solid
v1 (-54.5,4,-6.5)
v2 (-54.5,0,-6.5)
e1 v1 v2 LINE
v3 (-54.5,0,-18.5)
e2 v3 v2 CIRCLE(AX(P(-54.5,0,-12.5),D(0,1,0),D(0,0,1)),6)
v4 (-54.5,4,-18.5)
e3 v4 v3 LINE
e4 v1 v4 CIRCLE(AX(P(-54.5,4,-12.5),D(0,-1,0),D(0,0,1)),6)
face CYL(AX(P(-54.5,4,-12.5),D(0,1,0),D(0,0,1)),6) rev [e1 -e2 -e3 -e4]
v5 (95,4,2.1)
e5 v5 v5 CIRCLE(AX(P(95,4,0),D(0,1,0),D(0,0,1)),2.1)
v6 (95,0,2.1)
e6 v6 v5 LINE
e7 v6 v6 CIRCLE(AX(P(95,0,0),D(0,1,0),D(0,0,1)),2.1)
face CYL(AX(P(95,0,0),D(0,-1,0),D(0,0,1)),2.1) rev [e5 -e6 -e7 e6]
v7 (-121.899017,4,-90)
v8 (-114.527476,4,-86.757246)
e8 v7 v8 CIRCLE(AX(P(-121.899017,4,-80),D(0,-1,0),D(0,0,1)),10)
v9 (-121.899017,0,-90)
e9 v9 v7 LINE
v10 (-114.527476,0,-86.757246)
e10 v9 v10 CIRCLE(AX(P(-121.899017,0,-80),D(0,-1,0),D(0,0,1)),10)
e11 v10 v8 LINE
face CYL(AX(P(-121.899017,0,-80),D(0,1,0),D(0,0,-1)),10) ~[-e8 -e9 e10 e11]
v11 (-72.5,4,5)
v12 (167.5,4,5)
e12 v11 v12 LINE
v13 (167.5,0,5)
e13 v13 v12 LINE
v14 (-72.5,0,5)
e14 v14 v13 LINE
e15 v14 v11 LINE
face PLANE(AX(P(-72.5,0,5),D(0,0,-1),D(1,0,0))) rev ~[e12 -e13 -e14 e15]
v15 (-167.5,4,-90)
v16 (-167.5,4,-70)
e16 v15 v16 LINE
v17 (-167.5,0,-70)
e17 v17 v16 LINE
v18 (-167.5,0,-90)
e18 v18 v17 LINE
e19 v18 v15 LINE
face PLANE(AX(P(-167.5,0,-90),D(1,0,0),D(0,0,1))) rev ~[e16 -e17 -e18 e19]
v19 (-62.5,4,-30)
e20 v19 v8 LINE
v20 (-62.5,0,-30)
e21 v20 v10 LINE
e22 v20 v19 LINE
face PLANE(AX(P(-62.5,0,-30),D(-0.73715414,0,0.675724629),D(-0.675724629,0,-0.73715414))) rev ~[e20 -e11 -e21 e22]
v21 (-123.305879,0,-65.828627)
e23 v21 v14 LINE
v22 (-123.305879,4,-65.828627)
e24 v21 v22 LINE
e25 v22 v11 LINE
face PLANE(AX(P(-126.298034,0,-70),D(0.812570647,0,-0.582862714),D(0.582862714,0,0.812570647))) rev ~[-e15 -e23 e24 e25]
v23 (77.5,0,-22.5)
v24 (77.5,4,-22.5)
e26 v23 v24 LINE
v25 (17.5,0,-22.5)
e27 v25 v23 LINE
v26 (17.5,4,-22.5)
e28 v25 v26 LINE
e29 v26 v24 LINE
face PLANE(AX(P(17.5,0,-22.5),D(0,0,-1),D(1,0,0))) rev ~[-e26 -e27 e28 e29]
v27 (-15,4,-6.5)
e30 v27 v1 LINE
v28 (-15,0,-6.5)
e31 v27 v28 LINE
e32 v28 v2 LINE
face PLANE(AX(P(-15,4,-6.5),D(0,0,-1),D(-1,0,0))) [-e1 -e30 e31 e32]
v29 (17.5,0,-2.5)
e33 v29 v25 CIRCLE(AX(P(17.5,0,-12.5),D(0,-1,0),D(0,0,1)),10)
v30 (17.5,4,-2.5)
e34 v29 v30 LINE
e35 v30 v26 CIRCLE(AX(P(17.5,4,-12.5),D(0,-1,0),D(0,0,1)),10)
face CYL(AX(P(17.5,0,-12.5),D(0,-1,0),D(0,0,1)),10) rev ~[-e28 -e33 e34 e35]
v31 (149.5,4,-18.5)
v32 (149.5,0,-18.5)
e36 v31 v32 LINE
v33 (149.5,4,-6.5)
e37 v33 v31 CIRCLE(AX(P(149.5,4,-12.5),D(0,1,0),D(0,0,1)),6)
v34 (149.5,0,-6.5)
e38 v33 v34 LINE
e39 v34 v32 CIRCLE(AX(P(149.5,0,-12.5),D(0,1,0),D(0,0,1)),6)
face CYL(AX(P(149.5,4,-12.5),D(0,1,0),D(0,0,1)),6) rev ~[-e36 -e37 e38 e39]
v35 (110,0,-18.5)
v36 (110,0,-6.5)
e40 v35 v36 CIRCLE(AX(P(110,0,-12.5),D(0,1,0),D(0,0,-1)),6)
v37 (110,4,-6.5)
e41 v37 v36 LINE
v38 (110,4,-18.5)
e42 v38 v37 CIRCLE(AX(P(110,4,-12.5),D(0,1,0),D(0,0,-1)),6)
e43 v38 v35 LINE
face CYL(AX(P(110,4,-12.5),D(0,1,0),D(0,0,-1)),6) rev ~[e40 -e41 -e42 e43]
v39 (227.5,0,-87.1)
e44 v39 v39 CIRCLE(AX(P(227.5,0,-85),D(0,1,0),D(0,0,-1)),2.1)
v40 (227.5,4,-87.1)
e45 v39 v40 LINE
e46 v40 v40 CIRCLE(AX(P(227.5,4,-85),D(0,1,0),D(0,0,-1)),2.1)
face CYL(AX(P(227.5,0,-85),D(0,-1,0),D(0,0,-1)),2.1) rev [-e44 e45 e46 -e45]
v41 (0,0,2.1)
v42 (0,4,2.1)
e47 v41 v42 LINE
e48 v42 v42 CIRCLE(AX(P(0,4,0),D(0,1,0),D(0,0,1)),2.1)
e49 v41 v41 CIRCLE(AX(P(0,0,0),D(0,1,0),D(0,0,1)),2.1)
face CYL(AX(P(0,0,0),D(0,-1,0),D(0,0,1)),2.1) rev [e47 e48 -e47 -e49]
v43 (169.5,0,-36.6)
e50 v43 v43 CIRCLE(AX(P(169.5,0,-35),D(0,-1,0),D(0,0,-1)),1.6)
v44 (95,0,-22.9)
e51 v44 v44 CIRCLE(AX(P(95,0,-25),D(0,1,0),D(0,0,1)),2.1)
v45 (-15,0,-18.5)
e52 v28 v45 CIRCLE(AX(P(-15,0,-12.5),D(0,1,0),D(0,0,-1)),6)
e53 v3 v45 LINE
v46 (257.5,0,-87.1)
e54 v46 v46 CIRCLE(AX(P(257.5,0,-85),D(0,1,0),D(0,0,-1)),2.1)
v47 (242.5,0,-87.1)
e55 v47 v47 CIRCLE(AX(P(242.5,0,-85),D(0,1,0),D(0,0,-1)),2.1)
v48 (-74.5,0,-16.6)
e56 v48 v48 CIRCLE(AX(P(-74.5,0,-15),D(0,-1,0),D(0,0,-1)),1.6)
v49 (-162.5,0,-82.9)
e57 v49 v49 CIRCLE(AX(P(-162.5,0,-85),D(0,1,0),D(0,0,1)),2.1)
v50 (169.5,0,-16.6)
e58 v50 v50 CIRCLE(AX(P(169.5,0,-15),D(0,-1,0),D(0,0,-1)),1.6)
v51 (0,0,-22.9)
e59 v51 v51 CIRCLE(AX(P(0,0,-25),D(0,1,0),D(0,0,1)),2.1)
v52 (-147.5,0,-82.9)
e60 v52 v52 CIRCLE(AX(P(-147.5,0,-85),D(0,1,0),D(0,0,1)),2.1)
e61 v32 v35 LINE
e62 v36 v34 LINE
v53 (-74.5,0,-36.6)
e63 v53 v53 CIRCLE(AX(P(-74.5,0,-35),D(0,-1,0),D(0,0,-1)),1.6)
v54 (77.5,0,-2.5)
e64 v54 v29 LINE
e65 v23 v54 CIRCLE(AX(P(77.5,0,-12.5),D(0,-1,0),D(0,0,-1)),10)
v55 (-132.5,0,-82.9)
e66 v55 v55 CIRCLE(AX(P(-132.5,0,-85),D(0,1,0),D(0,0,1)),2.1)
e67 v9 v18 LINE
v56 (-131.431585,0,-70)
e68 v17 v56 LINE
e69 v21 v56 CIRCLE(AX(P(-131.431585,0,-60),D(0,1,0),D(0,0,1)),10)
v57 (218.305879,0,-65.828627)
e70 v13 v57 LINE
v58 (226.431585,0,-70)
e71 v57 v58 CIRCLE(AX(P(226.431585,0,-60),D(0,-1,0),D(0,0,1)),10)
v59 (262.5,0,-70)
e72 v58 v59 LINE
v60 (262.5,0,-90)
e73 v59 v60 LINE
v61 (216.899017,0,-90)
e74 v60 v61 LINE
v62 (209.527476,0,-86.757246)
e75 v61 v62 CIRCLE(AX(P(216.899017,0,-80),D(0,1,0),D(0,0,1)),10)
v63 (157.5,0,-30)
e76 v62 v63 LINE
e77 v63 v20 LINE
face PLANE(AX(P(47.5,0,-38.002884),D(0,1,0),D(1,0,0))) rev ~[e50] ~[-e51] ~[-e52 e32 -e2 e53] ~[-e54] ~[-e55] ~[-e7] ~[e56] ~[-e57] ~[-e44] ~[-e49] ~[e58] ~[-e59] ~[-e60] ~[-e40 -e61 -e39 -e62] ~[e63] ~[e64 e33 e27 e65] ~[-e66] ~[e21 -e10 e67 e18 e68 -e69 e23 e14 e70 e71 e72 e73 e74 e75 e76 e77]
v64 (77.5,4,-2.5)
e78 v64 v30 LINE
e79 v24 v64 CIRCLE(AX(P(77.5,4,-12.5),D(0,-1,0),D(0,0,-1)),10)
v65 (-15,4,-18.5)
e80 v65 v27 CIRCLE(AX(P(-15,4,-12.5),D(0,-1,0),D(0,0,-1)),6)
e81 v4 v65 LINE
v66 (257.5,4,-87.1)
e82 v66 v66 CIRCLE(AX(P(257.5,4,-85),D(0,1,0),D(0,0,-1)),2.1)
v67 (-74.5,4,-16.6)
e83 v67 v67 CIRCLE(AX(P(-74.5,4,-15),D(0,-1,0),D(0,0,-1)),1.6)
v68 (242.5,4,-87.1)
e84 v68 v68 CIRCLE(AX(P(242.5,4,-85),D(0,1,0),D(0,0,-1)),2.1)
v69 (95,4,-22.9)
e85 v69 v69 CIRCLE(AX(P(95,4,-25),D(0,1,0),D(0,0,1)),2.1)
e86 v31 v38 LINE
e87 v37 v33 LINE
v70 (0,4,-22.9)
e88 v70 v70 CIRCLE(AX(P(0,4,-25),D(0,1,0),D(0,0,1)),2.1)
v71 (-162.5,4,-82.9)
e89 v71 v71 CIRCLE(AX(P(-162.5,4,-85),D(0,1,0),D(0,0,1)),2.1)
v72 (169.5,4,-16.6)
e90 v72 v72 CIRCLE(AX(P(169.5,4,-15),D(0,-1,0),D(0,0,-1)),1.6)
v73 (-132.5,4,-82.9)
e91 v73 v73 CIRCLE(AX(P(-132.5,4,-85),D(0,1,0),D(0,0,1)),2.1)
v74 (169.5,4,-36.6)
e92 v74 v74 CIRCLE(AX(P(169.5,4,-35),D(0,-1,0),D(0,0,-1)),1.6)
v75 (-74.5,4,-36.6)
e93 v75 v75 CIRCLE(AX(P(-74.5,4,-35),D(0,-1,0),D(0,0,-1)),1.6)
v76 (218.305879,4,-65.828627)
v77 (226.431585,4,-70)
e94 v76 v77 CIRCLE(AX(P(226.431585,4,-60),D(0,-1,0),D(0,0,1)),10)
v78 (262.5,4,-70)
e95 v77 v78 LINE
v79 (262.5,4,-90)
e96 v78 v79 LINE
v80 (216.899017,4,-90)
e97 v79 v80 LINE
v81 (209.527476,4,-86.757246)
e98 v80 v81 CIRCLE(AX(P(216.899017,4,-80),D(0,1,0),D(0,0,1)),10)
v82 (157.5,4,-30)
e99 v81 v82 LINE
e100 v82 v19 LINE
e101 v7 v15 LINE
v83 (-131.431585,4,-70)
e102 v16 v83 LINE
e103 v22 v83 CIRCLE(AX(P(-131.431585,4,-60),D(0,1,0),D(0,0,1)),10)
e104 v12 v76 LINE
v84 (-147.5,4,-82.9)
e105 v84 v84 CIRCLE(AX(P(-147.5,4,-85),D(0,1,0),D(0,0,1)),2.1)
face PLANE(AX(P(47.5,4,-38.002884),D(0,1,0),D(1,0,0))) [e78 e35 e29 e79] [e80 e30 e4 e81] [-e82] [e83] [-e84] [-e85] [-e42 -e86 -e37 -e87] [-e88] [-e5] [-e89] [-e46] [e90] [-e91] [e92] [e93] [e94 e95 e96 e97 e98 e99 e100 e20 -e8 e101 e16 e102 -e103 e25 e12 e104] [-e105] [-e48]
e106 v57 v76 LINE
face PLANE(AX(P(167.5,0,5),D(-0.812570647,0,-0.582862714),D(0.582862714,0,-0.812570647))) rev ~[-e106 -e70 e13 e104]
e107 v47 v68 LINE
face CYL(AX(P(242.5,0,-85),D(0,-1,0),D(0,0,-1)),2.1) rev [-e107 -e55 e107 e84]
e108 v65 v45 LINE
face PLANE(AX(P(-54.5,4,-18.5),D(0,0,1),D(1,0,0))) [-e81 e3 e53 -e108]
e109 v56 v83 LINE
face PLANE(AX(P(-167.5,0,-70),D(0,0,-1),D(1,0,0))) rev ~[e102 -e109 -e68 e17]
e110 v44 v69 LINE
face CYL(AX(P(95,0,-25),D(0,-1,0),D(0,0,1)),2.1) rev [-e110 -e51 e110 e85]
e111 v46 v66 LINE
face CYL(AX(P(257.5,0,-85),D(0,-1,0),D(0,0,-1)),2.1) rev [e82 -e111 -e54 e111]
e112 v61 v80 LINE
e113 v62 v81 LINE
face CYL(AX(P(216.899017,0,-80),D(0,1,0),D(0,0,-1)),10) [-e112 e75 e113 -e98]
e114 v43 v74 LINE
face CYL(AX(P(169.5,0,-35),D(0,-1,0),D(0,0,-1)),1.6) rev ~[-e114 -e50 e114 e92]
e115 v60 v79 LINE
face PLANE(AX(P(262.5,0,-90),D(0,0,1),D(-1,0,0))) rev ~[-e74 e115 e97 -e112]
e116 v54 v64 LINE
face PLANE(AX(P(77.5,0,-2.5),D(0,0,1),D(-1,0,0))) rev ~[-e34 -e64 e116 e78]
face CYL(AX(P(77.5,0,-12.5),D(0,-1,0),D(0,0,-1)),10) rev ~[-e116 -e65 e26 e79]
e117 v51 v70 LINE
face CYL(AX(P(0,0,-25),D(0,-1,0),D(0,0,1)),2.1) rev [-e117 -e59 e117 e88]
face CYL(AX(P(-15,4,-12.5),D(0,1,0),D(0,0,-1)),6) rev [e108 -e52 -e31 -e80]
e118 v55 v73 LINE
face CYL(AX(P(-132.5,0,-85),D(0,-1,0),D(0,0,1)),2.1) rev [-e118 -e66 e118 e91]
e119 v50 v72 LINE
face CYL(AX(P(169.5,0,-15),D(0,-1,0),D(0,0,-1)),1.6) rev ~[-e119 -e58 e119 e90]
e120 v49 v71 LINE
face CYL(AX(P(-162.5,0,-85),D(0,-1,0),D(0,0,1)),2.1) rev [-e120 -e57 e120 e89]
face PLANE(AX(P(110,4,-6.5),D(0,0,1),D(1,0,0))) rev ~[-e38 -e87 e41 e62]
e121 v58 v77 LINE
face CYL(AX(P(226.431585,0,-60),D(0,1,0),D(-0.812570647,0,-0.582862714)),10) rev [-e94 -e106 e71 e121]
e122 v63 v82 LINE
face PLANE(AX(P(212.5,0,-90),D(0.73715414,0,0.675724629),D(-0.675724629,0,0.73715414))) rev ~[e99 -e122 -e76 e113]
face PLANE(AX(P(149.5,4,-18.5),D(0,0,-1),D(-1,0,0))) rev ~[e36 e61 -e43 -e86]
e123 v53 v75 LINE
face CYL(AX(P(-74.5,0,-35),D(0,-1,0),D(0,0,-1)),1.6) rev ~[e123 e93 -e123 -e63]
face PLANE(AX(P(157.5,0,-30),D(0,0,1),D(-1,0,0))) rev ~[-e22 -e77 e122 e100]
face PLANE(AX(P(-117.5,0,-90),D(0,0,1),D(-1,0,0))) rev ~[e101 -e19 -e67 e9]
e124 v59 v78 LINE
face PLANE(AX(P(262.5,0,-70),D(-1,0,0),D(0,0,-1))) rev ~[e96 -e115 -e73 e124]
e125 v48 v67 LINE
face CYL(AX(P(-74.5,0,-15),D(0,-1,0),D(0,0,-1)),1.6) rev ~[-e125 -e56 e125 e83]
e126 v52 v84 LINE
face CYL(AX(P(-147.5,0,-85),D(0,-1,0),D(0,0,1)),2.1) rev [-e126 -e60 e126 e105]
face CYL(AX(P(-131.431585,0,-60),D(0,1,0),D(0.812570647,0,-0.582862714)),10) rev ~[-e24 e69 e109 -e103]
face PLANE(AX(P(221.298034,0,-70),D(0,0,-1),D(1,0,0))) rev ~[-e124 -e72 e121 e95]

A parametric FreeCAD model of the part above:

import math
import FreeCAD as App
import Part
import Sketcher


def edges_at(feature, points):
    """Names of the edges that pass closest to the given points."""
    edges = feature.Shape.Edges
    near = lambda p: min(range(len(edges)), key=lambda i: edges[i].distToShape(Part.Vertex(*p))[0])
    return sorted({f"Edge{near(p) + 1}" for p in points})


def add_polygon(sketch, points):
    """Adds a closed chain of lines whose ends are joined by coincident constraints."""
    first, n = sketch.GeometryCount, len(points)
    for a, b in zip(points, points[1:] + points[:1]):
        sketch.addGeometry(Part.LineSegment(App.Vector(*a, 0), App.Vector(*b, 0)), False)
    for i in range(n):
        sketch.addConstraint(Sketcher.Constraint("Coincident", first + i, 2, first + (i + 1) % n, 1))

doc = App.newDocument("Part")
body = doc.addObject("PartDesign::Body", "Body")

# Sketch on XZ plane
sketch1 = doc.addObject("Sketcher::SketchObject", "Sketch")
body.addObject(sketch1)
sketch1.AttachmentSupport = (doc.XZ_Plane, [""])
sketch1.MapMode = "FlatFace"
add_polygon(sketch1, [(-72.5, 5), (167.5, 5), (221.3, -70), (262.5, -70), (262.5, -90), (212.5, -90), (157.5, -30), (-62.5, -30), (-117.5, -90), (-167.5, -90), (-167.5, -70), (-126.3, -70)])  # lines 0-11
sketch1.addGeometry(Part.Circle(App.Vector(0, 0, 0), App.Vector(0, 0, 1), 2.1), False)  # 12
sketch1.addGeometry(Part.ArcOfCircle(Part.Circle(App.Vector(77.5, -12.5, 0), App.Vector(0, 0, 1), 10), math.radians(-90), math.radians(90)), False)  # 13
sketch1.addGeometry(Part.LineSegment(App.Vector(77.5, -2.5, 0), App.Vector(17.5, -2.5, 0)), False)  # 14
sketch1.addGeometry(Part.ArcOfCircle(Part.Circle(App.Vector(17.5, -12.5, 0), App.Vector(0, 0, 1), 10), math.radians(90), math.radians(270)), False)  # 15
sketch1.addGeometry(Part.LineSegment(App.Vector(17.5, -22.5, 0), App.Vector(77.5, -22.5, 0)), False)  # 16
sketch1.addGeometry(Part.Circle(App.Vector(0, -25, 0), App.Vector(0, 0, 1), 2.1), False)  # 17
sketch1.addGeometry(Part.Circle(App.Vector(95, 0, 0), App.Vector(0, 0, 1), 2.1), False)  # 18
sketch1.addGeometry(Part.Circle(App.Vector(95, -25, 0), App.Vector(0, 0, 1), 2.1), False)  # 19
sketch1.addGeometry(Part.Circle(App.Vector(-162.5, -85, 0), App.Vector(0, 0, 1), 2.1), False)  # 20
sketch1.addGeometry(Part.Circle(App.Vector(-147.5, -85, 0), App.Vector(0, 0, 1), 2.1), False)  # 21
sketch1.addGeometry(Part.Circle(App.Vector(-132.5, -85, 0), App.Vector(0, 0, 1), 2.1), False)  # 22
sketch1.addGeometry(Part.Circle(App.Vector(227.5, -85, 0), App.Vector(0, 0, 1), 2.1), False)  # 23
sketch1.addGeometry(Part.Circle(App.Vector(242.5, -85, 0), App.Vector(0, 0, 1), 2.1), False)  # 24
sketch1.addGeometry(Part.Circle(App.Vector(257.5, -85, 0), App.Vector(0, 0, 1), 2.1), False)  # 25
sketch1.addConstraint(Sketcher.Constraint("Tangent", 13, 2, 14, 1))
sketch1.addConstraint(Sketcher.Constraint("Tangent", 14, 2, 15, 1))
sketch1.addConstraint(Sketcher.Constraint("Tangent", 15, 2, 16, 1))
sketch1.addConstraint(Sketcher.Constraint("Tangent", 16, 2, 13, 1))
sketch1.addConstraint(Sketcher.Constraint("Horizontal", 0))
sketch1.addConstraint(Sketcher.Constraint("Horizontal", 2))
sketch1.addConstraint(Sketcher.Constraint("Vertical", 3))
sketch1.addConstraint(Sketcher.Constraint("Horizontal", 4))
sketch1.addConstraint(Sketcher.Constraint("Horizontal", 6))
sketch1.addConstraint(Sketcher.Constraint("Horizontal", 8))
sketch1.addConstraint(Sketcher.Constraint("Vertical", 9))
sketch1.addConstraint(Sketcher.Constraint("Horizontal", 10))
sketch1.addConstraint(Sketcher.Constraint("Horizontal", 14))
sketch1.addConstraint(Sketcher.Constraint("Horizontal", 16))
sketch1.addConstraint(Sketcher.Constraint("Coincident", 12, 3, -1, 1))
sketch1.addConstraint(Sketcher.Constraint("Equal", 12, 17))
sketch1.addConstraint(Sketcher.Constraint("Equal", 17, 18))
sketch1.addConstraint(Sketcher.Constraint("Equal", 18, 19))
sketch1.addConstraint(Sketcher.Constraint("Equal", 19, 20))
sketch1.addConstraint(Sketcher.Constraint("Equal", 20, 21))
sketch1.addConstraint(Sketcher.Constraint("Equal", 21, 22))
sketch1.addConstraint(Sketcher.Constraint("Equal", 22, 23))
sketch1.addConstraint(Sketcher.Constraint("Equal", 23, 24))
sketch1.addConstraint(Sketcher.Constraint("Equal", 24, 25))
sketch1.addConstraint(Sketcher.Constraint("PointOnObject", 17, 3, -2))
sketch1.addConstraint(Sketcher.Constraint("PointOnObject", 18, 3, -1))
sketch1.addConstraint(Sketcher.Constraint("Horizontal", 17, 3, 19, 3))
sketch1.addConstraint(Sketcher.Constraint("Horizontal", 20, 3, 21, 3))
sketch1.addConstraint(Sketcher.Constraint("Horizontal", 21, 3, 22, 3))
sketch1.addConstraint(Sketcher.Constraint("Horizontal", 22, 3, 23, 3))
sketch1.addConstraint(Sketcher.Constraint("Horizontal", 23, 3, 24, 3))
sketch1.addConstraint(Sketcher.Constraint("Horizontal", 24, 3, 25, 3))
sketch1.addConstraint(Sketcher.Constraint("Horizontal", 4, 2, 7, 2))
sketch1.addConstraint(Sketcher.Constraint("Horizontal", 2, 2, 9, 2))
sketch1.addConstraint(Sketcher.Constraint("Vertical", 18, 3, 19, 3))
sketch1.addConstraint(Sketcher.Constraint("Equal", 4, 8))
sketch1.addConstraint(Sketcher.Constraint("Equal", 2, 10))
sketch1.addConstraint(Sketcher.Constraint("Equal", 5, 7))
sketch1.addConstraint(Sketcher.Constraint("Equal", 1, 11))
sketch1.addConstraint(Sketcher.Constraint("Radius", 13, 10.0))
sketch1.addConstraint(Sketcher.Constraint("Diameter", 12, 4.2))
sketch1.addConstraint(Sketcher.Constraint("DistanceX", 0, 1, 0, 2, 240.0))
sketch1.addConstraint(Sketcher.Constraint("DistanceX", 4, 2, 4, 1, 50.0))
sketch1.addConstraint(Sketcher.Constraint("DistanceX", 6, 2, 6, 1, 220.0))
sketch1.addConstraint(Sketcher.Constraint("DistanceX", 14, 2, 14, 1, 60.0))
sketch1.addConstraint(Sketcher.Constraint("DistanceY", 3, 2, 3, 1, 20.0))
sketch1.addConstraint(Sketcher.Constraint("DistanceY", 17, 3, -1, 1, 25.0))
sketch1.addConstraint(Sketcher.Constraint("DistanceX", -1, 1, 18, 3, 95.0))
sketch1.addConstraint(Sketcher.Constraint("DistanceY", 20, 3, -1, 1, 85.0))
sketch1.addConstraint(Sketcher.Constraint("DistanceY", -1, 1, 0, 2, 5.0))
sketch1.addConstraint(Sketcher.Constraint("DistanceY", 1, 2, -1, 1, 70.0))
sketch1.addConstraint(Sketcher.Constraint("DistanceY", 5, 2, -1, 1, 30.0))
sketch1.addConstraint(Sketcher.Constraint("DistanceX", 20, 3, 15, 3, 180.0))
sketch1.addConstraint(Sketcher.Constraint("DistanceX", 20, 3, 21, 3, 15.0))
sketch1.addConstraint(Sketcher.Constraint("DistanceX", 21, 3, 22, 3, 15.0))
sketch1.addConstraint(Sketcher.Constraint("DistanceX", 13, 3, 23, 3, 150.0))
sketch1.addConstraint(Sketcher.Constraint("DistanceX", 23, 3, 24, 3, 15.0))
sketch1.addConstraint(Sketcher.Constraint("DistanceX", 24, 3, 25, 3, 15.0))
sketch1.addConstraint(Sketcher.Constraint("DistanceX", 13, 3, 0, 2, 90.0))
sketch1.addConstraint(Sketcher.Constraint("DistanceX", 25, 3, 2, 2, 5.0))
sketch1.addConstraint(Sketcher.Constraint("DistanceX", -1, 1, 13, 3, 77.5))
sketch1.addConstraint(Sketcher.Constraint("DistanceY", 13, 3, -1, 1, 12.5))
sketch1.addConstraint(Sketcher.Constraint("DistanceX", 2, 1, 2, 2, 41.201966))
pad1 = doc.addObject("PartDesign::Pad", "Pad")
body.addObject(pad1)
pad1.Profile = sketch1
pad1.Length = 4
pad1.Reversed = True

# Sketch on XZ plane
sketch2 = doc.addObject("Sketcher::SketchObject", "Sketch001")
body.addObject(sketch2)
sketch2.AttachmentSupport = (doc.XZ_Plane, [""])
sketch2.MapMode = "FlatFace"
sketch2.addGeometry(Part.Circle(App.Vector(169.5, -35, 0), App.Vector(0, 0, 1), 1.6), False)
sketch2.addGeometry(Part.Circle(App.Vector(169.5, -15, 0), App.Vector(0, 0, 1), 1.6), False)
sketch2.addGeometry(Part.Circle(App.Vector(-74.5, -15, 0), App.Vector(0, 0, 1), 1.6), False)
sketch2.addGeometry(Part.Circle(App.Vector(-74.5, -35, 0), App.Vector(0, 0, 1), 1.6), False)
sketch2.addConstraint(Sketcher.Constraint("Equal", 0, 1))
sketch2.addConstraint(Sketcher.Constraint("Equal", 1, 2))
sketch2.addConstraint(Sketcher.Constraint("Equal", 2, 3))
sketch2.addConstraint(Sketcher.Constraint("Horizontal", 1, 3, 2, 3))
sketch2.addConstraint(Sketcher.Constraint("Horizontal", 0, 3, 3, 3))
sketch2.addConstraint(Sketcher.Constraint("Vertical", 0, 3, 1, 3))
sketch2.addConstraint(Sketcher.Constraint("Vertical", 2, 3, 3, 3))
sketch2.addConstraint(Sketcher.Constraint("Diameter", 0, 3.2))
sketch2.addConstraint(Sketcher.Constraint("DistanceY", 0, 3, -1, 1, 35.0))
sketch2.addConstraint(Sketcher.Constraint("DistanceY", 1, 3, -1, 1, 15.0))
sketch2.addConstraint(Sketcher.Constraint("DistanceX", 2, 3, 1, 3, 244.0))
sketch2.addConstraint(Sketcher.Constraint("DistanceX", -1, 1, 0, 3, 169.5))
pocket1 = doc.addObject("PartDesign::Pocket", "Pocket")
body.addObject(pocket1)
pocket1.Profile = sketch2
pocket1.Length = 10
doc.recompute()

fillet = doc.addObject("PartDesign::Fillet", "Fillet")
body.addObject(fillet)
fillet.Base = (pocket1, edges_at(pocket1, [
    (212.5, 2, -90),
    (221.298, 2, -70),
    (-126.298, 2, -70),
    (-117.5, 2, -90),
]))
fillet.Radius = 10

# Sketch on XZ plane
sketch3 = doc.addObject("Sketcher::SketchObject", "Sketch002")
body.addObject(sketch3)
sketch3.AttachmentSupport = (doc.XZ_Plane, [""])
sketch3.MapMode = "FlatFace"
sketch3.AttachmentOffset = App.Placement(App.Vector(0, 0, -4), App.Rotation())
sketch3.addGeometry(Part.LineSegment(App.Vector(-15, -18, 0), App.Vector(-54, -18, 0)), False)
sketch3.addGeometry(Part.ArcOfCircle(Part.Circle(App.Vector(-54, -12, 0), App.Vector(0, 0, 1), 6), math.radians(90), math.radians(270)), False)
sketch3.addGeometry(Part.LineSegment(App.Vector(-54, -6, 0), App.Vector(-15, -6, 0)), False)
sketch3.addGeometry(Part.ArcOfCircle(Part.Circle(App.Vector(-15, -12, 0), App.Vector(0, 0, 1), 6), math.radians(-90), math.radians(90)), False)
sketch3.addGeometry(Part.LineSegment(App.Vector(150, -18, 0), App.Vector(110, -18, 0)), False)
sketch3.addGeometry(Part.ArcOfCircle(Part.Circle(App.Vector(110, -12, 0), App.Vector(0, 0, 1), 6), math.radians(90), math.radians(270)), False)
sketch3.addGeometry(Part.LineSegment(App.Vector(110, -6, 0), App.Vector(150, -6, 0)), False)
sketch3.addGeometry(Part.ArcOfCircle(Part.Circle(App.Vector(150, -12, 0), App.Vector(0, 0, 1), 6), math.radians(-90), math.radians(90)), False)
sketch3.addConstraint(Sketcher.Constraint("Tangent", 0, 2, 1, 2))
sketch3.addConstraint(Sketcher.Constraint("Tangent", 1, 1, 2, 1))
sketch3.addConstraint(Sketcher.Constraint("Tangent", 2, 2, 3, 2))
sketch3.addConstraint(Sketcher.Constraint("Tangent", 3, 1, 0, 1))
sketch3.addConstraint(Sketcher.Constraint("Tangent", 4, 2, 5, 2))
sketch3.addConstraint(Sketcher.Constraint("Tangent", 5, 1, 6, 1))
sketch3.addConstraint(Sketcher.Constraint("Tangent", 6, 2, 7, 2))
sketch3.addConstraint(Sketcher.Constraint("Tangent", 7, 1, 4, 1))
sketch3.addConstraint(Sketcher.Constraint("Horizontal", 0))
sketch3.addConstraint(Sketcher.Constraint("Horizontal", 2))
sketch3.addConstraint(Sketcher.Constraint("Horizontal", 4))
sketch3.addConstraint(Sketcher.Constraint("Horizontal", 6))
sketch3.addConstraint(Sketcher.Constraint("Equal", 3, 5))
sketch3.addConstraint(Sketcher.Constraint("Horizontal", 3, 3, 5, 3))
sketch3.addConstraint(Sketcher.Constraint("Equal", 2, 4))
sketch3.addConstraint(Sketcher.Constraint("Radius", 1, 6.0))
sketch3.addConstraint(Sketcher.Constraint("DistanceX", 0, 2, 0, 1, 39.5))
sketch3.addConstraint(Sketcher.Constraint("DistanceX", 3, 3, -1, 1, 15.0))
sketch3.addConstraint(Sketcher.Constraint("DistanceX", -1, 1, 5, 3, 110.0))
sketch3.addConstraint(Sketcher.Constraint("DistanceY", 1, 3, -1, 1, 12.5))
pocket2 = doc.addObject("PartDesign::Pocket", "Pocket001")
body.addObject(pocket2)
pocket2.Profile = sketch3
pocket2.Type = "ThroughAll"
pocket2.Reversed = True

doc.recompute()
